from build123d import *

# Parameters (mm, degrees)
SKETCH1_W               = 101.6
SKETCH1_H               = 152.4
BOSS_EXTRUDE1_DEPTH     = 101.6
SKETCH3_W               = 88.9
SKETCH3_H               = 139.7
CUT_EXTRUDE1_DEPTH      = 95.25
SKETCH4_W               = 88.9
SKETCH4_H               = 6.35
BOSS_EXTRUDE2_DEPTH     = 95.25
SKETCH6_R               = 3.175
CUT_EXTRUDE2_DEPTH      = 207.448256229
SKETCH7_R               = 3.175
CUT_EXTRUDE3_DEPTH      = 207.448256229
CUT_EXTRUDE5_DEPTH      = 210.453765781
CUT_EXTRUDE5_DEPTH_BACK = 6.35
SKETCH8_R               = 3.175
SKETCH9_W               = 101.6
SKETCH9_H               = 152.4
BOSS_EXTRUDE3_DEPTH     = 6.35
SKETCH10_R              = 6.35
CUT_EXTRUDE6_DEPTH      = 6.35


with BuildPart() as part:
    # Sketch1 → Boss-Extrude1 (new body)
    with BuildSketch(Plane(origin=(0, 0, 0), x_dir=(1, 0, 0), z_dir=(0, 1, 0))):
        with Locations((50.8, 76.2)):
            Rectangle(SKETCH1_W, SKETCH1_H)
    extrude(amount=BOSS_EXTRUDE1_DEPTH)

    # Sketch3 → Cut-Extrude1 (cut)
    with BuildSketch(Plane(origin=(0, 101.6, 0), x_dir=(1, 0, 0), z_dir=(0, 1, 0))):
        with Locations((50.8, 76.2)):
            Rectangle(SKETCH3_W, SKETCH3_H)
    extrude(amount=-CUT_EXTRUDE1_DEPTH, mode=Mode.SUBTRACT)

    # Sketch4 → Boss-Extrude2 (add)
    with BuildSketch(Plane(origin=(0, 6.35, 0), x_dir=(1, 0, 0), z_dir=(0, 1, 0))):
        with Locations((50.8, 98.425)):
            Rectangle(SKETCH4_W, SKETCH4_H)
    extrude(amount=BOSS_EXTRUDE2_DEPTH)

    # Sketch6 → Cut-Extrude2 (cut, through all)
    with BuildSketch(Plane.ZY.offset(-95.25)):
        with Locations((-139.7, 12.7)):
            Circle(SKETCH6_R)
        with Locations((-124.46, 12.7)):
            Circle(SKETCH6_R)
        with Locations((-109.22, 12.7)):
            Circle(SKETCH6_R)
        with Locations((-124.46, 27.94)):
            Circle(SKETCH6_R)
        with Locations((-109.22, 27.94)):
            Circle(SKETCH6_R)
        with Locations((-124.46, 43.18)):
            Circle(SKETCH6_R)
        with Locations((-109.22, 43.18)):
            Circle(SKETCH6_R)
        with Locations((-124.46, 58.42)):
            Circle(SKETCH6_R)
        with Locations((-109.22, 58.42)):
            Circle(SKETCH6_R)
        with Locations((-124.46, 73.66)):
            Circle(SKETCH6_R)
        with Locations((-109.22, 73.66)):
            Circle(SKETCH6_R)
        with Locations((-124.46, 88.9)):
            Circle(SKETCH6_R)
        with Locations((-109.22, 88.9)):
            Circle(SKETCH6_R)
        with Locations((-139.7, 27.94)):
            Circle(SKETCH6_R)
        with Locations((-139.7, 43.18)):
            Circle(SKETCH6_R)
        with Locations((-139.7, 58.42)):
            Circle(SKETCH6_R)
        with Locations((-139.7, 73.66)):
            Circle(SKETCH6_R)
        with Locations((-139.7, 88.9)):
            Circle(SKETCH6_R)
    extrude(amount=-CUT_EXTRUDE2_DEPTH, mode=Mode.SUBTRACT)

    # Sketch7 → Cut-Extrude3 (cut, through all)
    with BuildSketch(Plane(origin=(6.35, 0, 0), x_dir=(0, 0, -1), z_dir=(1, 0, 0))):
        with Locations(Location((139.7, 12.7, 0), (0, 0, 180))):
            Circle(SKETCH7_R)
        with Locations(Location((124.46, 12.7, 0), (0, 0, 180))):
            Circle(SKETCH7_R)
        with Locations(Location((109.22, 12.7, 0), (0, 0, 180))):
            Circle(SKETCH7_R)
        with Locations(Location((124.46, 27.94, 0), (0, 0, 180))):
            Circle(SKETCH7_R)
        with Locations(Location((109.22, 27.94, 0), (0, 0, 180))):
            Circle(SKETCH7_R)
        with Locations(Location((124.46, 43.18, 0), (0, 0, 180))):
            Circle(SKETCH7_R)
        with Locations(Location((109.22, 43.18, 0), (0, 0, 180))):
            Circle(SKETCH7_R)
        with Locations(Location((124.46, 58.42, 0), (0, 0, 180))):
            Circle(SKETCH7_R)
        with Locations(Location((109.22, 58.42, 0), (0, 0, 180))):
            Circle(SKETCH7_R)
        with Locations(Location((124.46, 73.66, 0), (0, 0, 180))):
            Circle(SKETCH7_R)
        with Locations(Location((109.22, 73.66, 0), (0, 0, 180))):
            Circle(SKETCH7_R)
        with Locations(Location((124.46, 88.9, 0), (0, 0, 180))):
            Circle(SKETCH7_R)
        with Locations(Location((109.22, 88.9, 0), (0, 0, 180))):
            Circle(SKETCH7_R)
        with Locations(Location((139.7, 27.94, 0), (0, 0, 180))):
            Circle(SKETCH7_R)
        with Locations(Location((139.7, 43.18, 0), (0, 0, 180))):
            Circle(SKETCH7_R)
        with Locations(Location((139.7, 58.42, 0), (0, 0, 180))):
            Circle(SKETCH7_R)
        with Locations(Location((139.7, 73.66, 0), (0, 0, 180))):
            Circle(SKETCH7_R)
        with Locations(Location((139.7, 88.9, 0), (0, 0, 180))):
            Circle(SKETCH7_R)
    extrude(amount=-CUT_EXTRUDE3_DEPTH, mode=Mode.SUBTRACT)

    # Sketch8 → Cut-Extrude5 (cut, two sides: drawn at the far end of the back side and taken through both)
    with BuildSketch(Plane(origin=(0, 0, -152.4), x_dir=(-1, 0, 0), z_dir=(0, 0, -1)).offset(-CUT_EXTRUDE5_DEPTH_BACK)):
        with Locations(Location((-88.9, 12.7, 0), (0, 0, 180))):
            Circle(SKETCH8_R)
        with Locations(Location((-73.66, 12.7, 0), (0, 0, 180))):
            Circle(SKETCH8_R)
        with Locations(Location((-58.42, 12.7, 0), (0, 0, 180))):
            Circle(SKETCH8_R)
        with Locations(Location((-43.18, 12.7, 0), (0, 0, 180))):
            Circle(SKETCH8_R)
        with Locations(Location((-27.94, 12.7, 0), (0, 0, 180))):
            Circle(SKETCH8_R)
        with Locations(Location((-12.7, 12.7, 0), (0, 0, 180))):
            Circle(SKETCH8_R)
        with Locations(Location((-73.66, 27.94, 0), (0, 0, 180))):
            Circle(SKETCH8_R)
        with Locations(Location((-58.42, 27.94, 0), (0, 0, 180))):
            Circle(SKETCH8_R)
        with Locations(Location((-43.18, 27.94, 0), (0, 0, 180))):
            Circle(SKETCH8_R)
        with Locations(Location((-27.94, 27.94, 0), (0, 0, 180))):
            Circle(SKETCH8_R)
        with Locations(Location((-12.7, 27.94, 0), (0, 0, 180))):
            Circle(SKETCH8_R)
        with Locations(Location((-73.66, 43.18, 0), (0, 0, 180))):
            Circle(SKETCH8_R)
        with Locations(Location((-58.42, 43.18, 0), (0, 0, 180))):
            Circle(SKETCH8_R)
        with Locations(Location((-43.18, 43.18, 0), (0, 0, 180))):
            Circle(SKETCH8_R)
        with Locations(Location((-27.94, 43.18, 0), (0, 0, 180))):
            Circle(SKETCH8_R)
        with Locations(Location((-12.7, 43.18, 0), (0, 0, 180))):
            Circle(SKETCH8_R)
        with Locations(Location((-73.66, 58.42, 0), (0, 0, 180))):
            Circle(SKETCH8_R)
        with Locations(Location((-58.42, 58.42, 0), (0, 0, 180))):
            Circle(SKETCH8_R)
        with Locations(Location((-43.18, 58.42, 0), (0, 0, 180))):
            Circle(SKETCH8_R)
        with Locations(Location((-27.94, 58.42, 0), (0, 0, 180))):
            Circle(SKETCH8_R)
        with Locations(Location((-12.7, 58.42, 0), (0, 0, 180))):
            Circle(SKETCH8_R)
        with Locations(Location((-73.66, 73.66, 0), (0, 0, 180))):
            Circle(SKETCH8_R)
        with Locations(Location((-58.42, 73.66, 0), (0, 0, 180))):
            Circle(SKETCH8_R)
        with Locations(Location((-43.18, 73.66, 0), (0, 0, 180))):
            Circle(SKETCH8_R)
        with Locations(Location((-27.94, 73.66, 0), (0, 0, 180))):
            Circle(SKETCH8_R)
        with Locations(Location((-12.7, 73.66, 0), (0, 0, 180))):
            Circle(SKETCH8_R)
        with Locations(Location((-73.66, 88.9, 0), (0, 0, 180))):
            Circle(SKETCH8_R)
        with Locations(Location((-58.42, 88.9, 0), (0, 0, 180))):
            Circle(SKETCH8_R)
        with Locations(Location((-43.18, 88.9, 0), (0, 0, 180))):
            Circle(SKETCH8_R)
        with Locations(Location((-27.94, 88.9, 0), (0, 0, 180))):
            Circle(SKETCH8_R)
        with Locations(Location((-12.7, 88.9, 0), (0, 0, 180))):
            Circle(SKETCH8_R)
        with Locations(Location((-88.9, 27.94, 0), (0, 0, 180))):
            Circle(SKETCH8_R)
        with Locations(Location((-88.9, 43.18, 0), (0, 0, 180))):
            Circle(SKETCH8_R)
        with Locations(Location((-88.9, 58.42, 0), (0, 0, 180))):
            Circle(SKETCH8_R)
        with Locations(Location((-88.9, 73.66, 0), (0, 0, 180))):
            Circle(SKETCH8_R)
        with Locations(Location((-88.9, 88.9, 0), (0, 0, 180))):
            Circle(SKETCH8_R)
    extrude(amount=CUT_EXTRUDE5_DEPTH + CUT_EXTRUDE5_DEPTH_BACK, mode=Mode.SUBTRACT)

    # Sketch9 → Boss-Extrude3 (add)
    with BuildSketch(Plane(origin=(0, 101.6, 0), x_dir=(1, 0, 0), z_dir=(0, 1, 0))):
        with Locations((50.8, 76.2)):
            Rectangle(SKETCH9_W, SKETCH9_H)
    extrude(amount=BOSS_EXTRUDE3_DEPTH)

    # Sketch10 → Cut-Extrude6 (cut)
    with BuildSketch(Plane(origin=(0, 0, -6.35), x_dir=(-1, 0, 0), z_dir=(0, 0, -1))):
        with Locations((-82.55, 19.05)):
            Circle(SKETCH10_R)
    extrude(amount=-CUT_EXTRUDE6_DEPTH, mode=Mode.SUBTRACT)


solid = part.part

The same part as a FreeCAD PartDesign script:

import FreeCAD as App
import Part
import Sketcher

V = App.Vector
Q = App.Units.Quantity

doc = App.newDocument("Part")
params = doc.addObject("Spreadsheet::Sheet", "Params")
for row, (alias, value) in enumerate([
    ("sketch1_width", "4 in"),
    ("sketch1_height", "6 in"),
    ("pad1_length", "4 in"),
    ("sketch2_width", "3.5 in"),
    ("sketch2_height", "5.5 in"),
    ("pocket1_length", "3.75 in"),
    ("sketch3_width", "3.5 in"),
    ("sketch3_height", "0.25 in"),
    ("pad2_length", "3.75 in"),
    ("sketch4_diameter", "0.25 in"),
    ("sketch5_diameter", "0.25 in"),
    ("sketch6_diameter", "0.25 in"),
    ("pocket4_length", "210.453766 mm"),
    ("pocket4_length2", "0.25 in"),
    ("sketch7_width", "4 in"),
    ("sketch7_height", "6 in"),
    ("pad3_length", "0.25 in"),
    ("sketch8_diameter", "0.5 in"),
    ("pocket5_length", "0.25 in"),
], start=1):
    params.set(f"A{row}", alias)
    params.set(f"B{row}", "=" + value)
    params.setAlias(f"B{row}", alias)

body = doc.addObject("PartDesign::Body", "Body")

sketch1 = doc.addObject("Sketcher::SketchObject", "Sketch")
body.addObject(sketch1)
sketch1.AttachmentSupport = (doc.XZ_Plane, [""])
sketch1.MapMode = "FlatFace"
sketch1.addGeometry([
    Part.LineSegment(V(0, -152, 0), V(0, 0, 0)),
    Part.LineSegment(V(0, 0, 0), V(102, 0, 0)),
    Part.LineSegment(V(102, 0, 0), V(102, -152, 0)),
    Part.LineSegment(V(102, -152, 0), V(0, -152, 0)),
], False)
sketch1.addConstraint([
    Sketcher.Constraint("Coincident", 0, 2, 1, 1),
    Sketcher.Constraint("Coincident", 1, 2, 2, 1),
    Sketcher.Constraint("Coincident", 2, 2, 3, 1),
    Sketcher.Constraint("Coincident", 3, 2, 0, 1),
    Sketcher.Constraint("Vertical", 0),
    Sketcher.Constraint("Horizontal", 1),
    Sketcher.Constraint("Vertical", 2),
    Sketcher.Constraint("Horizontal", 3),
    Sketcher.Constraint("Coincident", 0, 2, -1, 1),
    Sketcher.Constraint("DistanceX", 1, 1, 1, 2, Q("4 in")),
    Sketcher.Constraint("DistanceY", 0, 1, 0, 2, Q("6 in")),
])
sketch1.setExpression("Constraints[9]", "Params.sketch1_width")
sketch1.setExpression("Constraints[10]", "Params.sketch1_height")
pad1 = doc.addObject("PartDesign::Pad", "Pad")
body.addObject(pad1)
pad1.Profile = sketch1
pad1.setExpression("Length", "Params.pad1_length")
pad1.Reversed = True

sketch2 = doc.addObject("Sketcher::SketchObject", "Sketch001")
body.addObject(sketch2)
sketch2.AttachmentSupport = (doc.XZ_Plane, [""])
sketch2.MapMode = "FlatFace"
sketch2.AttachmentOffset = App.Placement(V(0, 0, -4 * 25.4), App.Rotation())
sketch2.addGeometry([
    Part.LineSegment(V(6, -146, 0), V(6, -6, 0)),
    Part.LineSegment(V(6, -6, 0), V(95, -6, 0)),
    Part.LineSegment(V(95, -6, 0), V(95, -146, 0)),
    Part.LineSegment(V(95, -146, 0), V(6, -146, 0)),
], False)
sketch2.addConstraint([
    Sketcher.Constraint("Coincident", 0, 2, 1, 1),
    Sketcher.Constraint("Coincident", 1, 2, 2, 1),
    Sketcher.Constraint("Coincident", 2, 2, 3, 1),
    Sketcher.Constraint("Coincident", 3, 2, 0, 1),
    Sketcher.Constraint("Vertical", 0),
    Sketcher.Constraint("Horizontal", 1),
    Sketcher.Constraint("Vertical", 2),
    Sketcher.Constraint("Horizontal", 3),
    Sketcher.Constraint("DistanceX", 1, 1, 1, 2, Q("3.5 in")),
    Sketcher.Constraint("DistanceY", 0, 1, 0, 2, Q("5.5 in")),
    Sketcher.Constraint("DistanceX", -1, 1, 0, 2, Q("0.25 in")),
    Sketcher.Constraint("DistanceY", 0, 2, -1, 1, Q("0.25 in")),
])
sketch2.setExpression("Constraints[8]", "Params.sketch2_width")
sketch2.setExpression("Constraints[9]", "Params.sketch2_height")
pocket1 = doc.addObject("PartDesign::Pocket", "Pocket")
body.addObject(pocket1)
pocket1.Profile = sketch2
pocket1.setExpression("Length", "Params.pocket1_length")
pocket1.Reversed = True

sketch3 = doc.addObject("Sketcher::SketchObject", "Sketch002")
body.addObject(sketch3)
sketch3.AttachmentSupport = (doc.XZ_Plane, [""])
sketch3.MapMode = "FlatFace"
sketch3.AttachmentOffset = App.Placement(V(0, 0, -0.25 * 25.4), App.Rotation())
sketch3.addGeometry([
    Part.LineSegment(V(6, -102, 0), V(6, -95, 0)),
    Part.LineSegment(V(6, -95, 0), V(95, -95, 0)),
    Part.LineSegment(V(95, -95, 0), V(95, -102, 0)),
    Part.LineSegment(V(95, -102, 0), V(6, -102, 0)),
], False)
sketch3.addConstraint([
    Sketcher.Constraint("Coincident", 0, 2, 1, 1),
    Sketcher.Constraint("Coincident", 1, 2, 2, 1),
    Sketcher.Constraint("Coincident", 2, 2, 3, 1),
    Sketcher.Constraint("Coincident", 3, 2, 0, 1),
    Sketcher.Constraint("Vertical", 0),
    Sketcher.Constraint("Horizontal", 1),
    Sketcher.Constraint("Vertical", 2),
    Sketcher.Constraint("Horizontal", 3),
    Sketcher.Constraint("DistanceX", 1, 1, 1, 2, Q("3.5 in")),
    Sketcher.Constraint("DistanceY", 2, 2, -1, 1, Q("4 in")),
    Sketcher.Constraint("DistanceY", 0, 1, 0, 2, Q("0.25 in")),
    Sketcher.Constraint("DistanceX", -1, 1, 0, 2, Q("0.25 in")),
])
sketch3.setExpression("Constraints[8]", "Params.sketch3_width")
sketch3.setExpression("Constraints[10]", "Params.sketch3_height")
pad2 = doc.addObject("PartDesign::Pad", "Pad001")
body.addObject(pad2)
pad2.Profile = sketch3
pad2.setExpression("Length", "Params.pad2_length")
pad2.Reversed = True

sketch4 = doc.addObject("Sketcher::SketchObject", "Sketch003")
body.addObject(sketch4)
sketch4.AttachmentSupport = (doc.YZ_Plane, [""])
sketch4.MapMode = "FlatFace"
sketch4.AttachmentOffset = App.Placement(V(0, 0, 3.75 * 25.4), App.Rotation())
sketch4.addGeometry([
    Part.Circle(V(12.7, -139.7, 0), V(0, 0, 1), 3.2),
    Part.Circle(V(12.7, -124.5, 0), V(0, 0, 1), 3.2),
    Part.Circle(V(12.7, -109.2, 0), V(0, 0, 1), 3.2),
    Part.Circle(V(27.9, -124.5, 0), V(0, 0, 1), 3.2),
    Part.Circle(V(27.9, -109.2, 0), V(0, 0, 1), 3.2),
    Part.Circle(V(43.2, -124.5, 0), V(0, 0, 1), 3.2),
    Part.Circle(V(43.2, -109.2, 0), V(0, 0, 1), 3.2),
    Part.Circle(V(58.4, -124.5, 0), V(0, 0, 1), 3.2),
    Part.Circle(V(58.4, -109.2, 0), V(0, 0, 1), 3.2),
    Part.Circle(V(73.7, -124.5, 0), V(0, 0, 1), 3.2),
    Part.Circle(V(73.7, -109.2, 0), V(0, 0, 1), 3.2),
    Part.Circle(V(88.9, -124.5, 0), V(0, 0, 1), 3.2),
    Part.Circle(V(88.9, -109.2, 0), V(0, 0, 1), 3.2),
    Part.Circle(V(27.9, -139.7, 0), V(0, 0, 1), 3.2),
    Part.Circle(V(43.2, -139.7, 0), V(0, 0, 1), 3.2),
    Part.Circle(V(58.4, -139.7, 0), V(0, 0, 1), 3.2),
    Part.Circle(V(73.7, -139.7, 0), V(0, 0, 1), 3.2),
    Part.Circle(V(88.9, -139.7, 0), V(0, 0, 1), 3.2),
], False)
sketch4.addConstraint([
    Sketcher.Constraint("Equal", 0, 1),
    Sketcher.Constraint("Equal", 1, 2),
    Sketcher.Constraint("Equal", 2, 3),
    Sketcher.Constraint("Equal", 3, 4),
    Sketcher.Constraint("Equal", 4, 5),
    Sketcher.Constraint("Equal", 5, 6),
    Sketcher.Constraint("Equal", 6, 7),
    Sketcher.Constraint("Equal", 7, 8),
    Sketcher.Constraint("Equal", 8, 9),
    Sketcher.Constraint("Equal", 9, 10),
    Sketcher.Constraint("Equal", 10, 11),
    Sketcher.Constraint("Equal", 11, 12),
    Sketcher.Constraint("Equal", 12, 13),
    Sketcher.Constraint("Equal", 13, 14),
    Sketcher.Constraint("Equal", 14, 15),
    Sketcher.Constraint("Equal", 15, 16),
    Sketcher.Constraint("Equal", 16, 17),
    Sketcher.Constraint("Horizontal", 1, 3, 3, 3),
    Sketcher.Constraint("Horizontal", 2, 3, 4, 3),
    Sketcher.Constraint("Horizontal", 3, 3, 5, 3),
    Sketcher.Constraint("Horizontal", 4, 3, 6, 3),
    Sketcher.Constraint("Horizontal", 5, 3, 7, 3),
    Sketcher.Constraint("Horizontal", 6, 3, 8, 3),
    Sketcher.Constraint("Horizontal", 7, 3, 9, 3),
    Sketcher.Constraint("Horizontal", 8, 3, 10, 3),
    Sketcher.Constraint("Horizontal", 9, 3, 11, 3),
    Sketcher.Constraint("Horizontal", 10, 3, 12, 3),
    Sketcher.Constraint("Horizontal", 0, 3, 13, 3),
    Sketcher.Constraint("Horizontal", 13, 3, 14, 3),
    Sketcher.Constraint("Horizontal", 14, 3, 15, 3),
    Sketcher.Constraint("Horizontal", 15, 3, 16, 3),
    Sketcher.Constraint("Horizontal", 16, 3, 17, 3),
    Sketcher.Constraint("Vertical", 0, 3, 1, 3),
    Sketcher.Constraint("Vertical", 1, 3, 2, 3),
    Sketcher.Constraint("Vertical", 3, 3, 4, 3),
    Sketcher.Constraint("Vertical", 5, 3, 6, 3),
    Sketcher.Constraint("Vertical", 7, 3, 8, 3),
    Sketcher.Constraint("Vertical", 9, 3, 10, 3),
    Sketcher.Constraint("Vertical", 11, 3, 12, 3),
    Sketcher.Constraint("Vertical", 4, 3, 13, 3),
    Sketcher.Constraint("Vertical", 6, 3, 14, 3),
    Sketcher.Constraint("Vertical", 8, 3, 15, 3),
    Sketcher.Constraint("Vertical", 10, 3, 16, 3),
    Sketcher.Constraint("Vertical", 12, 3, 17, 3),
    Sketcher.Constraint("Diameter", 0, Q("0.25 in")),
    Sketcher.Constraint("DistanceX", -1, 1, 0, 3, Q("0.5 in")),
    Sketcher.Constraint("DistanceY", 0, 3, -1, 1, Q("5.5 in")),
    Sketcher.Constraint("DistanceY", 1, 3, -1, 1, Q("4.9 in")),
    Sketcher.Constraint("DistanceY", 2, 3, -1, 1, Q("4.3 in")),
    Sketcher.Constraint("DistanceX", -1, 1, 3, 3, Q("1.1 in")),
    Sketcher.Constraint("DistanceX", -1, 1, 5, 3, Q("1.7 in")),
    Sketcher.Constraint("DistanceX", -1, 1, 7, 3, Q("2.3 in")),
    Sketcher.Constraint("DistanceX", -1, 1, 9, 3, Q("2.9 in")),
    Sketcher.Constraint("DistanceX", -1, 1, 11, 3, Q("3.5 in")),
])
sketch4.setExpression("Constraints[44]", "Params.sketch4_diameter")
pocket2 = doc.addObject("PartDesign::Pocket", "Pocket001")
body.addObject(pocket2)
pocket2.Profile = sketch4
pocket2.Type = "ThroughAll"
pocket2.Reversed = True

sketch5 = doc.addObject("Sketcher::SketchObject", "Sketch004")
body.addObject(sketch5)
sketch5.AttachmentSupport = (doc.YZ_Plane, [""])
sketch5.MapMode = "FlatFace"
sketch5.AttachmentOffset = App.Placement(V(0, 0, 0.25 * 25.4), App.Rotation())
sketch5.addGeometry([
    Part.Circle(V(12.7, -139.7, 0), V(0, 0, 1), 3.2),
    Part.Circle(V(12.7, -124.5, 0), V(0, 0, 1), 3.2),
    Part.Circle(V(12.7, -109.2, 0), V(0, 0, 1), 3.2),
    Part.Circle(V(27.9, -124.5, 0), V(0, 0, 1), 3.2),
    Part.Circle(V(27.9, -109.2, 0), V(0, 0, 1), 3.2),
    Part.Circle(V(43.2, -124.5, 0), V(0, 0, 1), 3.2),
    Part.Circle(V(43.2, -109.2, 0), V(0, 0, 1), 3.2),
    Part.Circle(V(58.4, -124.5, 0), V(0, 0, 1), 3.2),
    Part.Circle(V(58.4, -109.2, 0), V(0, 0, 1), 3.2),
    Part.Circle(V(73.7, -124.5, 0), V(0, 0, 1), 3.2),
    Part.Circle(V(73.7, -109.2, 0), V(0, 0, 1), 3.2),
    Part.Circle(V(88.9, -124.5, 0), V(0, 0, 1), 3.2),
    Part.Circle(V(88.9, -109.2, 0), V(0, 0, 1), 3.2),
    Part.Circle(V(27.9, -139.7, 0), V(0, 0, 1), 3.2),
    Part.Circle(V(43.2, -139.7, 0), V(0, 0, 1), 3.2),
    Part.Circle(V(58.4, -139.7, 0), V(0, 0, 1), 3.2),
    Part.Circle(V(73.7, -139.7, 0), V(0, 0, 1), 3.2),
    Part.Circle(V(88.9, -139.7, 0), V(0, 0, 1), 3.2),
], False)
sketch5.addConstraint([
    Sketcher.Constraint("Equal", 0, 1),
    Sketcher.Constraint("Equal", 1, 2),
    Sketcher.Constraint("Equal", 2, 3),
    Sketcher.Constraint("Equal", 3, 4),
    Sketcher.Constraint("Equal", 4, 5),
    Sketcher.Constraint("Equal", 5, 6),
    Sketcher.Constraint("Equal", 6, 7),
    Sketcher.Constraint("Equal", 7, 8),
    Sketcher.Constraint("Equal", 8, 9),
    Sketcher.Constraint("Equal", 9, 10),
    Sketcher.Constraint("Equal", 10, 11),
    Sketcher.Constraint("Equal", 11, 12),
    Sketcher.Constraint("Equal", 12, 13),
    Sketcher.Constraint("Equal", 13, 14),
    Sketcher.Constraint("Equal", 14, 15),
    Sketcher.Constraint("Equal", 15, 16),
    Sketcher.Constraint("Equal", 16, 17),
    Sketcher.Constraint("Horizontal", 1, 3, 3, 3),
    Sketcher.Constraint("Horizontal", 2, 3, 4, 3),
    Sketcher.Constraint("Horizontal", 3, 3, 5, 3),
    Sketcher.Constraint("Horizontal", 4, 3, 6, 3),
    Sketcher.Constraint("Horizontal", 5, 3, 7, 3),
    Sketcher.Constraint("Horizontal", 6, 3, 8, 3),
    Sketcher.Constraint("Horizontal", 7, 3, 9, 3),
    Sketcher.Constraint("Horizontal", 8, 3, 10, 3),
    Sketcher.Constraint("Horizontal", 9, 3, 11, 3),
    Sketcher.Constraint("Horizontal", 10, 3, 12, 3),
    Sketcher.Constraint("Horizontal", 0, 3, 13, 3),
    Sketcher.Constraint("Horizontal", 13, 3, 14, 3),
    Sketcher.Constraint("Horizontal", 14, 3, 15, 3),
    Sketcher.Constraint("Horizontal", 15, 3, 16, 3),
    Sketcher.Constraint("Horizontal", 16, 3, 17, 3),
    Sketcher.Constraint("Vertical", 0, 3, 1, 3),
    Sketcher.Constraint("Vertical", 1, 3, 2, 3),
    Sketcher.Constraint("Vertical", 3, 3, 4, 3),
    Sketcher.Constraint("Vertical", 5, 3, 6, 3),
    Sketcher.Constraint("Vertical", 7, 3, 8, 3),
    Sketcher.Constraint("Vertical", 9, 3, 10, 3),
    Sketcher.Constraint("Vertical", 11, 3, 12, 3),
    Sketcher.Constraint("Vertical", 4, 3, 13, 3),
    Sketcher.Constraint("Vertical", 6, 3, 14, 3),
    Sketcher.Constraint("Vertical", 8, 3, 15, 3),
    Sketcher.Constraint("Vertical", 10, 3, 16, 3),
    Sketcher.Constraint("Vertical", 12, 3, 17, 3),
    Sketcher.Constraint("Diameter", 0, Q("0.25 in")),
    Sketcher.Constraint("DistanceX", -1, 1, 0, 3, Q("0.5 in")),
    Sketcher.Constraint("DistanceY", 0, 3, -1, 1, Q("5.5 in")),
    Sketcher.Constraint("DistanceY", 1, 3, -1, 1, Q("4.9 in")),
    Sketcher.Constraint("DistanceY", 2, 3, -1, 1, Q("4.3 in")),
    Sketcher.Constraint("DistanceX", -1, 1, 3, 3, Q("1.1 in")),
    Sketcher.Constraint("DistanceX", -1, 1, 5, 3, Q("1.7 in")),
    Sketcher.Constraint("DistanceX", -1, 1, 7, 3, Q("2.3 in")),
    Sketcher.Constraint("DistanceX", -1, 1, 9, 3, Q("2.9 in")),
    Sketcher.Constraint("DistanceX", -1, 1, 11, 3, Q("3.5 in")),
])
sketch5.setExpression("Constraints[44]", "Params.sketch5_diameter")
pocket3 = doc.addObject("PartDesign::Pocket", "Pocket002")
body.addObject(pocket3)
pocket3.Profile = sketch5
pocket3.Type = "ThroughAll"

sketch6 = doc.addObject("Sketcher::SketchObject", "Sketch005")
body.addObject(sketch6)
sketch6.AttachmentSupport = (doc.XY_Plane, [""])
sketch6.MapMode = "FlatFace"
sketch6.AttachmentOffset = App.Placement(V(0, 0, -6 * 25.4), App.Rotation())
sketch6.addGeometry([
    Part.Circle(V(88.9, 12.7, 0), V(0, 0, 1), 3.2),
    Part.Circle(V(73.7, 12.7, 0), V(0, 0, 1), 3.2),
    Part.Circle(V(58.4, 12.7, 0), V(0, 0, 1), 3.2),
    Part.Circle(V(43.2, 12.7, 0), V(0, 0, 1), 3.2),
    Part.Circle(V(27.9, 12.7, 0), V(0, 0, 1), 3.2),
    Part.Circle(V(12.7, 12.7, 0), V(0, 0, 1), 3.2),
    Part.Circle(V(73.7, 27.9, 0), V(0, 0, 1), 3.2),
    Part.Circle(V(58.4, 27.9, 0), V(0, 0, 1), 3.2),
    Part.Circle(V(43.2, 27.9, 0), V(0, 0, 1), 3.2),
    Part.Circle(V(27.9, 27.9, 0), V(0, 0, 1), 3.2),
    Part.Circle(V(12.7, 27.9, 0), V(0, 0, 1), 3.2),
    Part.Circle(V(73.7, 43.2, 0), V(0, 0, 1), 3.2),
    Part.Circle(V(58.4, 43.2, 0), V(0, 0, 1), 3.2),
    Part.Circle(V(43.2, 43.2, 0), V(0, 0, 1), 3.2),
    Part.Circle(V(27.9, 43.2, 0), V(0, 0, 1), 3.2),
    Part.Circle(V(12.7, 43.2, 0), V(0, 0, 1), 3.2),
    Part.Circle(V(73.7, 58.4, 0), V(0, 0, 1), 3.2),
    Part.Circle(V(58.4, 58.4, 0), V(0, 0, 1), 3.2),
    Part.Circle(V(43.2, 58.4, 0), V(0, 0, 1), 3.2),
    Part.Circle(V(27.9, 58.4, 0), V(0, 0, 1), 3.2),
    Part.Circle(V(12.7, 58.4, 0), V(0, 0, 1), 3.2),
    Part.Circle(V(73.7, 73.7, 0), V(0, 0, 1), 3.2),
    Part.Circle(V(58.4, 73.7, 0), V(0, 0, 1), 3.2),
    Part.Circle(V(43.2, 73.7, 0), V(0, 0, 1), 3.2),
    Part.Circle(V(27.9, 73.7, 0), V(0, 0, 1), 3.2),
    Part.Circle(V(12.7, 73.7, 0), V(0, 0, 1), 3.2),
    Part.Circle(V(73.7, 88.9, 0), V(0, 0, 1), 3.2),
    Part.Circle(V(58.4, 88.9, 0), V(0, 0, 1), 3.2),
    Part.Circle(V(43.2, 88.9, 0), V(0, 0, 1), 3.2),
    Part.Circle(V(27.9, 88.9, 0), V(0, 0, 1), 3.2),
    Part.Circle(V(12.7, 88.9, 0), V(0, 0, 1), 3.2),
    Part.Circle(V(88.9, 27.9, 0), V(0, 0, 1), 3.2),
    Part.Circle(V(88.9, 43.2, 0), V(0, 0, 1), 3.2),
    Part.Circle(V(88.9, 58.4, 0), V(0, 0, 1), 3.2),
    Part.Circle(V(88.9, 73.7, 0), V(0, 0, 1), 3.2),
    Part.Circle(V(88.9, 88.9, 0), V(0, 0, 1), 3.2),
], False)
sketch6.addConstraint([
    Sketcher.Constraint("Equal", 0, 1),
    Sketcher.Constraint("Equal", 1, 2),
    Sketcher.Constraint("Equal", 2, 3),
    Sketcher.Constraint("Equal", 3, 4),
    Sketcher.Constraint("Equal", 4, 5),
    Sketcher.Constraint("Equal", 5, 6),
    Sketcher.Constraint("Equal", 6, 7),
    Sketcher.Constraint("Equal", 7, 8),
    Sketcher.Constraint("Equal", 8, 9),
    Sketcher.Constraint("Equal", 9, 10),
    Sketcher.Constraint("Equal", 10, 11),
    Sketcher.Constraint("Equal", 11, 12),
    Sketcher.Constraint("Equal", 12, 13),
    Sketcher.Constraint("Equal", 13, 14),
    Sketcher.Constraint("Equal", 14, 15),
    Sketcher.Constraint("Equal", 15, 16),
    Sketcher.Constraint("Equal", 16, 17),
    Sketcher.Constraint("Equal", 17, 18),
    Sketcher.Constraint("Equal", 18, 19),
    Sketcher.Constraint("Equal", 19, 20),
    Sketcher.Constraint("Equal", 20, 21),
    Sketcher.Constraint("Equal", 21, 22),
    Sketcher.Constraint("Equal", 22, 23),
    Sketcher.Constraint("Equal", 23, 24),
    Sketcher.Constraint("Equal", 24, 25),
    Sketcher.Constraint("Equal", 25, 26),
    Sketcher.Constraint("Equal", 26, 27),
    Sketcher.Constraint("Equal", 27, 28),
    Sketcher.Constraint("Equal", 28, 29),
    Sketcher.Constraint("Equal", 29, 30),
    Sketcher.Constraint("Equal", 30, 31),
    Sketcher.Constraint("Equal", 31, 32),
    Sketcher.Constraint("Equal", 32, 33),
    Sketcher.Constraint("Equal", 33, 34),
    Sketcher.Constraint("Equal", 34, 35),
    Sketcher.Constraint("Horizontal", 0, 3, 1, 3),
    Sketcher.Constraint("Horizontal", 1, 3, 2, 3),
    Sketcher.Constraint("Horizontal", 2, 3, 3, 3),
    Sketcher.Constraint("Horizontal", 3, 3, 4, 3),
    Sketcher.Constraint("Horizontal", 4, 3, 5, 3),
    Sketcher.Constraint("Horizontal", 6, 3, 7, 3),
    Sketcher.Constraint("Horizontal", 7, 3, 8, 3),
    Sketcher.Constraint("Horizontal", 8, 3, 9, 3),
    Sketcher.Constraint("Horizontal", 9, 3, 10, 3),
    Sketcher.Constraint("Horizontal", 11, 3, 12, 3),
    Sketcher.Constraint("Horizontal", 12, 3, 13, 3),
    Sketcher.Constraint("Horizontal", 13, 3, 14, 3),
    Sketcher.Constraint("Horizontal", 14, 3, 15, 3),
    Sketcher.Constraint("Horizontal", 16, 3, 17, 3),
    Sketcher.Constraint("Horizontal", 17, 3, 18, 3),
    Sketcher.Constraint("Horizontal", 18, 3, 19, 3),
    Sketcher.Constraint("Horizontal", 19, 3, 20, 3),
    Sketcher.Constraint("Horizontal", 21, 3, 22, 3),
    Sketcher.Constraint("Horizontal", 22, 3, 23, 3),
    Sketcher.Constraint("Horizontal", 23, 3, 24, 3),
    Sketcher.Constraint("Horizontal", 24, 3, 25, 3),
    Sketcher.Constraint("Horizontal", 26, 3, 27, 3),
    Sketcher.Constraint("Horizontal", 27, 3, 28, 3),
    Sketcher.Constraint("Horizontal", 28, 3, 29, 3),
    Sketcher.Constraint("Horizontal", 29, 3, 30, 3),
    Sketcher.Constraint("Horizontal", 10, 3, 31, 3),
    Sketcher.Constraint("Horizontal", 15, 3, 32, 3),
    Sketcher.Constraint("Horizontal", 20, 3, 33, 3),
    Sketcher.Constraint("Horizontal", 25, 3, 34, 3),
    Sketcher.Constraint("Horizontal", 30, 3, 35, 3),
    Sketcher.Constraint("Vertical", 1, 3, 6, 3),
    Sketcher.Constraint("Vertical", 2, 3, 7, 3),
    Sketcher.Constraint("Vertical", 3, 3, 8, 3),
    Sketcher.Constraint("Vertical", 4, 3, 9, 3),
    Sketcher.Constraint("Vertical", 5, 3, 10, 3),
    Sketcher.Constraint("Vertical", 6, 3, 11, 3),
    Sketcher.Constraint("Vertical", 7, 3, 12, 3),
    Sketcher.Constraint("Vertical", 8, 3, 13, 3),
    Sketcher.Constraint("Vertical", 9, 3, 14, 3),
    Sketcher.Constraint("Vertical", 10, 3, 15, 3),
    Sketcher.Constraint("Vertical", 11, 3, 16, 3),
    Sketcher.Constraint("Vertical", 12, 3, 17, 3),
    Sketcher.Constraint("Vertical", 13, 3, 18, 3),
    Sketcher.Constraint("Vertical", 14, 3, 19, 3),
    Sketcher.Constraint("Vertical", 15, 3, 20, 3),
    Sketcher.Constraint("Vertical", 16, 3, 21, 3),
    Sketcher.Constraint("Vertical", 17, 3, 22, 3),
    Sketcher.Constraint("Vertical", 18, 3, 23, 3),
    Sketcher.Constraint("Vertical", 19, 3, 24, 3),
    Sketcher.Constraint("Vertical", 20, 3, 25, 3),
    Sketcher.Constraint("Vertical", 21, 3, 26, 3),
    Sketcher.Constraint("Vertical", 22, 3, 27, 3),
    Sketcher.Constraint("Vertical", 23, 3, 28, 3),
    Sketcher.Constraint("Vertical", 24, 3, 29, 3),
    Sketcher.Constraint("Vertical", 25, 3, 30, 3),
    Sketcher.Constraint("Vertical", 0, 3, 31, 3),
    Sketcher.Constraint("Vertical", 31, 3, 32, 3),
    Sketcher.Constraint("Vertical", 32, 3, 33, 3),
    Sketcher.Constraint("Vertical", 33, 3, 34, 3),
    Sketcher.Constraint("Vertical", 34, 3, 35, 3),
    Sketcher.Constraint("Diameter", 0, Q("0.25 in")),
    Sketcher.Constraint("DistanceX", 5, 3, 0, 3, Q("3 in")),
    Sketcher.Constraint("DistanceX", -1, 1, 0, 3, Q("3.5 in")),
    Sketcher.Constraint("DistanceY", -1, 1, 0, 3, Q("0.5 in")),
    Sketcher.Constraint("DistanceX", -1, 1, 1, 3, Q("2.9 in")),
    Sketcher.Constraint("DistanceX", -1, 1, 2, 3, Q("2.3 in")),
    Sketcher.Constraint("DistanceX", -1, 1, 3, 3, Q("1.7 in")),
    Sketcher.Constraint("DistanceX", -1, 1, 4, 3, Q("1.1 in")),
    Sketcher.Constraint("DistanceY", -1, 1, 6, 3, Q("1.1 in")),
    Sketcher.Constraint("DistanceY", -1, 1, 11, 3, Q("1.7 in")),
    Sketcher.Constraint("DistanceY", -1, 1, 16, 3, Q("2.3 in")),
    Sketcher.Constraint("DistanceY", -1, 1, 21, 3, Q("2.9 in")),
    Sketcher.Constraint("DistanceY", -1, 1, 26, 3, Q("3.5 in")),
])
sketch6.setExpression("Constraints[95]", "Params.sketch6_diameter")
pocket4 = doc.addObject("PartDesign::Pocket", "Pocket003")
body.addObject(pocket4)
pocket4.Profile = sketch6
pocket4.Type = "TwoLengths"
pocket4.setExpression("Length", "Params.pocket4_length")
pocket4.setExpression("Length2", "Params.pocket4_length2")

sketch7 = doc.addObject("Sketcher::SketchObject", "Sketch006")
body.addObject(sketch7)
sketch7.AttachmentSupport = (doc.XZ_Plane, [""])
sketch7.MapMode = "FlatFace"
sketch7.AttachmentOffset = App.Placement(V(0, 0, -4 * 25.4), App.Rotation())
sketch7.addGeometry([
    Part.LineSegment(V(0, -152, 0), V(0, 0, 0)),
    Part.LineSegment(V(0, 0, 0), V(102, 0, 0)),
    Part.LineSegment(V(102, 0, 0), V(102, -152, 0)),
    Part.LineSegment(V(102, -152, 0), V(0, -152, 0)),
], False)
sketch7.addConstraint([
    Sketcher.Constraint("Coincident", 0, 2, 1, 1),
    Sketcher.Constraint("Coincident", 1, 2, 2, 1),
    Sketcher.Constraint("Coincident", 2, 2, 3, 1),
    Sketcher.Constraint("Coincident", 3, 2, 0, 1),
    Sketcher.Constraint("Vertical", 0),
    Sketcher.Constraint("Horizontal", 1),
    Sketcher.Constraint("Vertical", 2),
    Sketcher.Constraint("Horizontal", 3),
    Sketcher.Constraint("Coincident", 0, 2, -1, 1),
    Sketcher.Constraint("DistanceX", 1, 1, 1, 2, Q("4 in")),
    Sketcher.Constraint("DistanceY", 0, 1, 0, 2, Q("6 in")),
])
sketch7.setExpression("Constraints[9]", "Params.sketch7_width")
sketch7.setExpression("Constraints[10]", "Params.sketch7_height")
pad3 = doc.addObject("PartDesign::Pad", "Pad002")
body.addObject(pad3)
pad3.Profile = sketch7
pad3.setExpression("Length", "Params.pad3_length")
pad3.Reversed = True

sketch8 = doc.addObject("Sketcher::SketchObject", "Sketch007")
body.addObject(sketch8)
sketch8.AttachmentSupport = (doc.XY_Plane, [""])
sketch8.MapMode = "FlatFace"
sketch8.AttachmentOffset = App.Placement(V(0, 0, -0.25 * 25.4), App.Rotation())
sketch8.addGeometry(Part.Circle(V(83, 19, 0), V(0, 0, 1), 6), False)
sketch8.addConstraint([
    Sketcher.Constraint("Diameter", 0, Q("0.5 in")),
    Sketcher.Constraint("DistanceX", -1, 1, 0, 3, Q("3.25 in")),
    Sketcher.Constraint("DistanceY", -1, 1, 0, 3, Q("0.75 in")),
])
sketch8.setExpression("Constraints[0]", "Params.sketch8_diameter")
pocket5 = doc.addObject("PartDesign::Pocket", "Pocket004")
body.addObject(pocket5)
pocket5.Profile = sketch8
pocket5.setExpression("Length", "Params.pocket5_length")
pocket5.Reversed = True

doc.recompute()
